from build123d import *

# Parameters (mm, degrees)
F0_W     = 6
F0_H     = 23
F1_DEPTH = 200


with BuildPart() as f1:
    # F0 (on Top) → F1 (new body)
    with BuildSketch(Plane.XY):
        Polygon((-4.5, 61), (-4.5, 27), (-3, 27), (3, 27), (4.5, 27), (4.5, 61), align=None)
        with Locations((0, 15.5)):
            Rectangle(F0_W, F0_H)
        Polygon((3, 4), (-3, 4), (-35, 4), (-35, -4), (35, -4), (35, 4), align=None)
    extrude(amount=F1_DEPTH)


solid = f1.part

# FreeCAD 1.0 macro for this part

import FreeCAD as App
import Part
import Sketcher
Q = App.Units.Quantity


def add_polygon(sketch, points):
    """Adds a closed chain of lines whose ends are joined by coincident constraints."""
    first, n = sketch.GeometryCount, len(points)
    for a, b in zip(points, points[1:] + points[:1]):
        sketch.addGeometry(Part.LineSegment(App.Vector(*a, 0), App.Vector(*b, 0)), False)
    for i in range(n):
        sketch.addConstraint(Sketcher.Constraint("Coincident", first + i, 2, first + (i + 1) % n, 1))

doc = App.newDocument("Part")
params = doc.addObject("Spreadsheet::Sheet", "Params")
for row, (alias, value) in enumerate([
    ("sketch1_width", "32 mm"),
    ("sketch1_width2", "70 mm"),
    ("sketch1_width3", "9 mm"),
    ("sketch1_height", "34 mm"),
    ("sketch1_height2", "23 mm"),
    ("pad1_length", "200 mm"),
], start=1):
    params.set(f"A{row}", alias)
    params.set(f"B{row}", "=" + value)
    params.setAlias(f"B{row}", alias)

body = doc.addObject("PartDesign::Body", "Body")

# Sketch on XY plane
sketch1 = body.newObject("Sketcher::SketchObject", "Sketch")
sketch1.AttachmentSupport = (doc.getObject("XY_Plane"), [""])
sketch1.MapMode = "FlatFace"
add_polygon(sketch1, [(-4.5, 61), (-4.5, 27), (-3, 27), (-3, 4), (-35, 4), (-35, -4), (35, -4), (35, 4), (3, 4), (3, 27), (4.5, 27), (4.5, 61)])  # lines 0-11
sketch1.addConstraint(Sketcher.Constraint("Vertical", 0))
sketch1.addConstraint(Sketcher.Constraint("Horizontal", 1))
sketch1.addConstraint(Sketcher.Constraint("Vertical", 2))
sketch1.addConstraint(Sketcher.Constraint("Horizontal", 3))
sketch1.addConstraint(Sketcher.Constraint("Vertical", 4))
sketch1.addConstraint(Sketcher.Constraint("Horizontal", 5))
sketch1.addConstraint(Sketcher.Constraint("Vertical", 6))
sketch1.addConstraint(Sketcher.Constraint("Horizontal", 7))
sketch1.addConstraint(Sketcher.Constraint("Vertical", 8))
sketch1.addConstraint(Sketcher.Constraint("Horizontal", 9))
sketch1.addConstraint(Sketcher.Constraint("Vertical", 10))
sketch1.addConstraint(Sketcher.Constraint("Horizontal", 11))
sketch1.addConstraint(Sketcher.Constraint("Symmetric", 3, 2, 5, 2, -1, 1))
sketch1.addConstraint(Sketcher.Constraint("Symmetric", 2, 2, 7, 2, -2))
sketch1.addConstraint(Sketcher.Constraint("Symmetric", 0, 2, 9, 2, -2))
sketch1.addConstraint(Sketcher.Constraint("DistanceX", 3, 2, 3, 1, Q("32 mm")))
sketch1.addConstraint(Sketcher.Constraint("DistanceX", 5, 1, 5, 2, Q("70 mm")))
sketch1.addConstraint(Sketcher.Constraint("DistanceX", 11, 2, 11, 1, Q("9 mm")))
sketch1.addConstraint(Sketcher.Constraint("DistanceY", 0, 2, 0, 1, Q("34 mm")))
sketch1.addConstraint(Sketcher.Constraint("DistanceY", 2, 2, 2, 1, Q("23 mm")))
sketch1.addConstraint(Sketcher.Constraint("DistanceY", 4, 2, 4, 1, Q("8 mm")))
sketch1.setExpression("Constraints[27]", "Params.sketch1_width")
sketch1.setExpression("Constraints[28]", "Params.sketch1_width2")
sketch1.setExpression("Constraints[29]", "Params.sketch1_width3")
sketch1.setExpression("Constraints[30]", "Params.sketch1_height")
sketch1.setExpression("Constraints[31]", "Params.sketch1_height2")
pad1 = body.newObject("PartDesign::Pad", "Pad")
pad1.Profile = sketch1
pad1.setExpression("Length", "Params.pad1_length")

doc.recompute()
